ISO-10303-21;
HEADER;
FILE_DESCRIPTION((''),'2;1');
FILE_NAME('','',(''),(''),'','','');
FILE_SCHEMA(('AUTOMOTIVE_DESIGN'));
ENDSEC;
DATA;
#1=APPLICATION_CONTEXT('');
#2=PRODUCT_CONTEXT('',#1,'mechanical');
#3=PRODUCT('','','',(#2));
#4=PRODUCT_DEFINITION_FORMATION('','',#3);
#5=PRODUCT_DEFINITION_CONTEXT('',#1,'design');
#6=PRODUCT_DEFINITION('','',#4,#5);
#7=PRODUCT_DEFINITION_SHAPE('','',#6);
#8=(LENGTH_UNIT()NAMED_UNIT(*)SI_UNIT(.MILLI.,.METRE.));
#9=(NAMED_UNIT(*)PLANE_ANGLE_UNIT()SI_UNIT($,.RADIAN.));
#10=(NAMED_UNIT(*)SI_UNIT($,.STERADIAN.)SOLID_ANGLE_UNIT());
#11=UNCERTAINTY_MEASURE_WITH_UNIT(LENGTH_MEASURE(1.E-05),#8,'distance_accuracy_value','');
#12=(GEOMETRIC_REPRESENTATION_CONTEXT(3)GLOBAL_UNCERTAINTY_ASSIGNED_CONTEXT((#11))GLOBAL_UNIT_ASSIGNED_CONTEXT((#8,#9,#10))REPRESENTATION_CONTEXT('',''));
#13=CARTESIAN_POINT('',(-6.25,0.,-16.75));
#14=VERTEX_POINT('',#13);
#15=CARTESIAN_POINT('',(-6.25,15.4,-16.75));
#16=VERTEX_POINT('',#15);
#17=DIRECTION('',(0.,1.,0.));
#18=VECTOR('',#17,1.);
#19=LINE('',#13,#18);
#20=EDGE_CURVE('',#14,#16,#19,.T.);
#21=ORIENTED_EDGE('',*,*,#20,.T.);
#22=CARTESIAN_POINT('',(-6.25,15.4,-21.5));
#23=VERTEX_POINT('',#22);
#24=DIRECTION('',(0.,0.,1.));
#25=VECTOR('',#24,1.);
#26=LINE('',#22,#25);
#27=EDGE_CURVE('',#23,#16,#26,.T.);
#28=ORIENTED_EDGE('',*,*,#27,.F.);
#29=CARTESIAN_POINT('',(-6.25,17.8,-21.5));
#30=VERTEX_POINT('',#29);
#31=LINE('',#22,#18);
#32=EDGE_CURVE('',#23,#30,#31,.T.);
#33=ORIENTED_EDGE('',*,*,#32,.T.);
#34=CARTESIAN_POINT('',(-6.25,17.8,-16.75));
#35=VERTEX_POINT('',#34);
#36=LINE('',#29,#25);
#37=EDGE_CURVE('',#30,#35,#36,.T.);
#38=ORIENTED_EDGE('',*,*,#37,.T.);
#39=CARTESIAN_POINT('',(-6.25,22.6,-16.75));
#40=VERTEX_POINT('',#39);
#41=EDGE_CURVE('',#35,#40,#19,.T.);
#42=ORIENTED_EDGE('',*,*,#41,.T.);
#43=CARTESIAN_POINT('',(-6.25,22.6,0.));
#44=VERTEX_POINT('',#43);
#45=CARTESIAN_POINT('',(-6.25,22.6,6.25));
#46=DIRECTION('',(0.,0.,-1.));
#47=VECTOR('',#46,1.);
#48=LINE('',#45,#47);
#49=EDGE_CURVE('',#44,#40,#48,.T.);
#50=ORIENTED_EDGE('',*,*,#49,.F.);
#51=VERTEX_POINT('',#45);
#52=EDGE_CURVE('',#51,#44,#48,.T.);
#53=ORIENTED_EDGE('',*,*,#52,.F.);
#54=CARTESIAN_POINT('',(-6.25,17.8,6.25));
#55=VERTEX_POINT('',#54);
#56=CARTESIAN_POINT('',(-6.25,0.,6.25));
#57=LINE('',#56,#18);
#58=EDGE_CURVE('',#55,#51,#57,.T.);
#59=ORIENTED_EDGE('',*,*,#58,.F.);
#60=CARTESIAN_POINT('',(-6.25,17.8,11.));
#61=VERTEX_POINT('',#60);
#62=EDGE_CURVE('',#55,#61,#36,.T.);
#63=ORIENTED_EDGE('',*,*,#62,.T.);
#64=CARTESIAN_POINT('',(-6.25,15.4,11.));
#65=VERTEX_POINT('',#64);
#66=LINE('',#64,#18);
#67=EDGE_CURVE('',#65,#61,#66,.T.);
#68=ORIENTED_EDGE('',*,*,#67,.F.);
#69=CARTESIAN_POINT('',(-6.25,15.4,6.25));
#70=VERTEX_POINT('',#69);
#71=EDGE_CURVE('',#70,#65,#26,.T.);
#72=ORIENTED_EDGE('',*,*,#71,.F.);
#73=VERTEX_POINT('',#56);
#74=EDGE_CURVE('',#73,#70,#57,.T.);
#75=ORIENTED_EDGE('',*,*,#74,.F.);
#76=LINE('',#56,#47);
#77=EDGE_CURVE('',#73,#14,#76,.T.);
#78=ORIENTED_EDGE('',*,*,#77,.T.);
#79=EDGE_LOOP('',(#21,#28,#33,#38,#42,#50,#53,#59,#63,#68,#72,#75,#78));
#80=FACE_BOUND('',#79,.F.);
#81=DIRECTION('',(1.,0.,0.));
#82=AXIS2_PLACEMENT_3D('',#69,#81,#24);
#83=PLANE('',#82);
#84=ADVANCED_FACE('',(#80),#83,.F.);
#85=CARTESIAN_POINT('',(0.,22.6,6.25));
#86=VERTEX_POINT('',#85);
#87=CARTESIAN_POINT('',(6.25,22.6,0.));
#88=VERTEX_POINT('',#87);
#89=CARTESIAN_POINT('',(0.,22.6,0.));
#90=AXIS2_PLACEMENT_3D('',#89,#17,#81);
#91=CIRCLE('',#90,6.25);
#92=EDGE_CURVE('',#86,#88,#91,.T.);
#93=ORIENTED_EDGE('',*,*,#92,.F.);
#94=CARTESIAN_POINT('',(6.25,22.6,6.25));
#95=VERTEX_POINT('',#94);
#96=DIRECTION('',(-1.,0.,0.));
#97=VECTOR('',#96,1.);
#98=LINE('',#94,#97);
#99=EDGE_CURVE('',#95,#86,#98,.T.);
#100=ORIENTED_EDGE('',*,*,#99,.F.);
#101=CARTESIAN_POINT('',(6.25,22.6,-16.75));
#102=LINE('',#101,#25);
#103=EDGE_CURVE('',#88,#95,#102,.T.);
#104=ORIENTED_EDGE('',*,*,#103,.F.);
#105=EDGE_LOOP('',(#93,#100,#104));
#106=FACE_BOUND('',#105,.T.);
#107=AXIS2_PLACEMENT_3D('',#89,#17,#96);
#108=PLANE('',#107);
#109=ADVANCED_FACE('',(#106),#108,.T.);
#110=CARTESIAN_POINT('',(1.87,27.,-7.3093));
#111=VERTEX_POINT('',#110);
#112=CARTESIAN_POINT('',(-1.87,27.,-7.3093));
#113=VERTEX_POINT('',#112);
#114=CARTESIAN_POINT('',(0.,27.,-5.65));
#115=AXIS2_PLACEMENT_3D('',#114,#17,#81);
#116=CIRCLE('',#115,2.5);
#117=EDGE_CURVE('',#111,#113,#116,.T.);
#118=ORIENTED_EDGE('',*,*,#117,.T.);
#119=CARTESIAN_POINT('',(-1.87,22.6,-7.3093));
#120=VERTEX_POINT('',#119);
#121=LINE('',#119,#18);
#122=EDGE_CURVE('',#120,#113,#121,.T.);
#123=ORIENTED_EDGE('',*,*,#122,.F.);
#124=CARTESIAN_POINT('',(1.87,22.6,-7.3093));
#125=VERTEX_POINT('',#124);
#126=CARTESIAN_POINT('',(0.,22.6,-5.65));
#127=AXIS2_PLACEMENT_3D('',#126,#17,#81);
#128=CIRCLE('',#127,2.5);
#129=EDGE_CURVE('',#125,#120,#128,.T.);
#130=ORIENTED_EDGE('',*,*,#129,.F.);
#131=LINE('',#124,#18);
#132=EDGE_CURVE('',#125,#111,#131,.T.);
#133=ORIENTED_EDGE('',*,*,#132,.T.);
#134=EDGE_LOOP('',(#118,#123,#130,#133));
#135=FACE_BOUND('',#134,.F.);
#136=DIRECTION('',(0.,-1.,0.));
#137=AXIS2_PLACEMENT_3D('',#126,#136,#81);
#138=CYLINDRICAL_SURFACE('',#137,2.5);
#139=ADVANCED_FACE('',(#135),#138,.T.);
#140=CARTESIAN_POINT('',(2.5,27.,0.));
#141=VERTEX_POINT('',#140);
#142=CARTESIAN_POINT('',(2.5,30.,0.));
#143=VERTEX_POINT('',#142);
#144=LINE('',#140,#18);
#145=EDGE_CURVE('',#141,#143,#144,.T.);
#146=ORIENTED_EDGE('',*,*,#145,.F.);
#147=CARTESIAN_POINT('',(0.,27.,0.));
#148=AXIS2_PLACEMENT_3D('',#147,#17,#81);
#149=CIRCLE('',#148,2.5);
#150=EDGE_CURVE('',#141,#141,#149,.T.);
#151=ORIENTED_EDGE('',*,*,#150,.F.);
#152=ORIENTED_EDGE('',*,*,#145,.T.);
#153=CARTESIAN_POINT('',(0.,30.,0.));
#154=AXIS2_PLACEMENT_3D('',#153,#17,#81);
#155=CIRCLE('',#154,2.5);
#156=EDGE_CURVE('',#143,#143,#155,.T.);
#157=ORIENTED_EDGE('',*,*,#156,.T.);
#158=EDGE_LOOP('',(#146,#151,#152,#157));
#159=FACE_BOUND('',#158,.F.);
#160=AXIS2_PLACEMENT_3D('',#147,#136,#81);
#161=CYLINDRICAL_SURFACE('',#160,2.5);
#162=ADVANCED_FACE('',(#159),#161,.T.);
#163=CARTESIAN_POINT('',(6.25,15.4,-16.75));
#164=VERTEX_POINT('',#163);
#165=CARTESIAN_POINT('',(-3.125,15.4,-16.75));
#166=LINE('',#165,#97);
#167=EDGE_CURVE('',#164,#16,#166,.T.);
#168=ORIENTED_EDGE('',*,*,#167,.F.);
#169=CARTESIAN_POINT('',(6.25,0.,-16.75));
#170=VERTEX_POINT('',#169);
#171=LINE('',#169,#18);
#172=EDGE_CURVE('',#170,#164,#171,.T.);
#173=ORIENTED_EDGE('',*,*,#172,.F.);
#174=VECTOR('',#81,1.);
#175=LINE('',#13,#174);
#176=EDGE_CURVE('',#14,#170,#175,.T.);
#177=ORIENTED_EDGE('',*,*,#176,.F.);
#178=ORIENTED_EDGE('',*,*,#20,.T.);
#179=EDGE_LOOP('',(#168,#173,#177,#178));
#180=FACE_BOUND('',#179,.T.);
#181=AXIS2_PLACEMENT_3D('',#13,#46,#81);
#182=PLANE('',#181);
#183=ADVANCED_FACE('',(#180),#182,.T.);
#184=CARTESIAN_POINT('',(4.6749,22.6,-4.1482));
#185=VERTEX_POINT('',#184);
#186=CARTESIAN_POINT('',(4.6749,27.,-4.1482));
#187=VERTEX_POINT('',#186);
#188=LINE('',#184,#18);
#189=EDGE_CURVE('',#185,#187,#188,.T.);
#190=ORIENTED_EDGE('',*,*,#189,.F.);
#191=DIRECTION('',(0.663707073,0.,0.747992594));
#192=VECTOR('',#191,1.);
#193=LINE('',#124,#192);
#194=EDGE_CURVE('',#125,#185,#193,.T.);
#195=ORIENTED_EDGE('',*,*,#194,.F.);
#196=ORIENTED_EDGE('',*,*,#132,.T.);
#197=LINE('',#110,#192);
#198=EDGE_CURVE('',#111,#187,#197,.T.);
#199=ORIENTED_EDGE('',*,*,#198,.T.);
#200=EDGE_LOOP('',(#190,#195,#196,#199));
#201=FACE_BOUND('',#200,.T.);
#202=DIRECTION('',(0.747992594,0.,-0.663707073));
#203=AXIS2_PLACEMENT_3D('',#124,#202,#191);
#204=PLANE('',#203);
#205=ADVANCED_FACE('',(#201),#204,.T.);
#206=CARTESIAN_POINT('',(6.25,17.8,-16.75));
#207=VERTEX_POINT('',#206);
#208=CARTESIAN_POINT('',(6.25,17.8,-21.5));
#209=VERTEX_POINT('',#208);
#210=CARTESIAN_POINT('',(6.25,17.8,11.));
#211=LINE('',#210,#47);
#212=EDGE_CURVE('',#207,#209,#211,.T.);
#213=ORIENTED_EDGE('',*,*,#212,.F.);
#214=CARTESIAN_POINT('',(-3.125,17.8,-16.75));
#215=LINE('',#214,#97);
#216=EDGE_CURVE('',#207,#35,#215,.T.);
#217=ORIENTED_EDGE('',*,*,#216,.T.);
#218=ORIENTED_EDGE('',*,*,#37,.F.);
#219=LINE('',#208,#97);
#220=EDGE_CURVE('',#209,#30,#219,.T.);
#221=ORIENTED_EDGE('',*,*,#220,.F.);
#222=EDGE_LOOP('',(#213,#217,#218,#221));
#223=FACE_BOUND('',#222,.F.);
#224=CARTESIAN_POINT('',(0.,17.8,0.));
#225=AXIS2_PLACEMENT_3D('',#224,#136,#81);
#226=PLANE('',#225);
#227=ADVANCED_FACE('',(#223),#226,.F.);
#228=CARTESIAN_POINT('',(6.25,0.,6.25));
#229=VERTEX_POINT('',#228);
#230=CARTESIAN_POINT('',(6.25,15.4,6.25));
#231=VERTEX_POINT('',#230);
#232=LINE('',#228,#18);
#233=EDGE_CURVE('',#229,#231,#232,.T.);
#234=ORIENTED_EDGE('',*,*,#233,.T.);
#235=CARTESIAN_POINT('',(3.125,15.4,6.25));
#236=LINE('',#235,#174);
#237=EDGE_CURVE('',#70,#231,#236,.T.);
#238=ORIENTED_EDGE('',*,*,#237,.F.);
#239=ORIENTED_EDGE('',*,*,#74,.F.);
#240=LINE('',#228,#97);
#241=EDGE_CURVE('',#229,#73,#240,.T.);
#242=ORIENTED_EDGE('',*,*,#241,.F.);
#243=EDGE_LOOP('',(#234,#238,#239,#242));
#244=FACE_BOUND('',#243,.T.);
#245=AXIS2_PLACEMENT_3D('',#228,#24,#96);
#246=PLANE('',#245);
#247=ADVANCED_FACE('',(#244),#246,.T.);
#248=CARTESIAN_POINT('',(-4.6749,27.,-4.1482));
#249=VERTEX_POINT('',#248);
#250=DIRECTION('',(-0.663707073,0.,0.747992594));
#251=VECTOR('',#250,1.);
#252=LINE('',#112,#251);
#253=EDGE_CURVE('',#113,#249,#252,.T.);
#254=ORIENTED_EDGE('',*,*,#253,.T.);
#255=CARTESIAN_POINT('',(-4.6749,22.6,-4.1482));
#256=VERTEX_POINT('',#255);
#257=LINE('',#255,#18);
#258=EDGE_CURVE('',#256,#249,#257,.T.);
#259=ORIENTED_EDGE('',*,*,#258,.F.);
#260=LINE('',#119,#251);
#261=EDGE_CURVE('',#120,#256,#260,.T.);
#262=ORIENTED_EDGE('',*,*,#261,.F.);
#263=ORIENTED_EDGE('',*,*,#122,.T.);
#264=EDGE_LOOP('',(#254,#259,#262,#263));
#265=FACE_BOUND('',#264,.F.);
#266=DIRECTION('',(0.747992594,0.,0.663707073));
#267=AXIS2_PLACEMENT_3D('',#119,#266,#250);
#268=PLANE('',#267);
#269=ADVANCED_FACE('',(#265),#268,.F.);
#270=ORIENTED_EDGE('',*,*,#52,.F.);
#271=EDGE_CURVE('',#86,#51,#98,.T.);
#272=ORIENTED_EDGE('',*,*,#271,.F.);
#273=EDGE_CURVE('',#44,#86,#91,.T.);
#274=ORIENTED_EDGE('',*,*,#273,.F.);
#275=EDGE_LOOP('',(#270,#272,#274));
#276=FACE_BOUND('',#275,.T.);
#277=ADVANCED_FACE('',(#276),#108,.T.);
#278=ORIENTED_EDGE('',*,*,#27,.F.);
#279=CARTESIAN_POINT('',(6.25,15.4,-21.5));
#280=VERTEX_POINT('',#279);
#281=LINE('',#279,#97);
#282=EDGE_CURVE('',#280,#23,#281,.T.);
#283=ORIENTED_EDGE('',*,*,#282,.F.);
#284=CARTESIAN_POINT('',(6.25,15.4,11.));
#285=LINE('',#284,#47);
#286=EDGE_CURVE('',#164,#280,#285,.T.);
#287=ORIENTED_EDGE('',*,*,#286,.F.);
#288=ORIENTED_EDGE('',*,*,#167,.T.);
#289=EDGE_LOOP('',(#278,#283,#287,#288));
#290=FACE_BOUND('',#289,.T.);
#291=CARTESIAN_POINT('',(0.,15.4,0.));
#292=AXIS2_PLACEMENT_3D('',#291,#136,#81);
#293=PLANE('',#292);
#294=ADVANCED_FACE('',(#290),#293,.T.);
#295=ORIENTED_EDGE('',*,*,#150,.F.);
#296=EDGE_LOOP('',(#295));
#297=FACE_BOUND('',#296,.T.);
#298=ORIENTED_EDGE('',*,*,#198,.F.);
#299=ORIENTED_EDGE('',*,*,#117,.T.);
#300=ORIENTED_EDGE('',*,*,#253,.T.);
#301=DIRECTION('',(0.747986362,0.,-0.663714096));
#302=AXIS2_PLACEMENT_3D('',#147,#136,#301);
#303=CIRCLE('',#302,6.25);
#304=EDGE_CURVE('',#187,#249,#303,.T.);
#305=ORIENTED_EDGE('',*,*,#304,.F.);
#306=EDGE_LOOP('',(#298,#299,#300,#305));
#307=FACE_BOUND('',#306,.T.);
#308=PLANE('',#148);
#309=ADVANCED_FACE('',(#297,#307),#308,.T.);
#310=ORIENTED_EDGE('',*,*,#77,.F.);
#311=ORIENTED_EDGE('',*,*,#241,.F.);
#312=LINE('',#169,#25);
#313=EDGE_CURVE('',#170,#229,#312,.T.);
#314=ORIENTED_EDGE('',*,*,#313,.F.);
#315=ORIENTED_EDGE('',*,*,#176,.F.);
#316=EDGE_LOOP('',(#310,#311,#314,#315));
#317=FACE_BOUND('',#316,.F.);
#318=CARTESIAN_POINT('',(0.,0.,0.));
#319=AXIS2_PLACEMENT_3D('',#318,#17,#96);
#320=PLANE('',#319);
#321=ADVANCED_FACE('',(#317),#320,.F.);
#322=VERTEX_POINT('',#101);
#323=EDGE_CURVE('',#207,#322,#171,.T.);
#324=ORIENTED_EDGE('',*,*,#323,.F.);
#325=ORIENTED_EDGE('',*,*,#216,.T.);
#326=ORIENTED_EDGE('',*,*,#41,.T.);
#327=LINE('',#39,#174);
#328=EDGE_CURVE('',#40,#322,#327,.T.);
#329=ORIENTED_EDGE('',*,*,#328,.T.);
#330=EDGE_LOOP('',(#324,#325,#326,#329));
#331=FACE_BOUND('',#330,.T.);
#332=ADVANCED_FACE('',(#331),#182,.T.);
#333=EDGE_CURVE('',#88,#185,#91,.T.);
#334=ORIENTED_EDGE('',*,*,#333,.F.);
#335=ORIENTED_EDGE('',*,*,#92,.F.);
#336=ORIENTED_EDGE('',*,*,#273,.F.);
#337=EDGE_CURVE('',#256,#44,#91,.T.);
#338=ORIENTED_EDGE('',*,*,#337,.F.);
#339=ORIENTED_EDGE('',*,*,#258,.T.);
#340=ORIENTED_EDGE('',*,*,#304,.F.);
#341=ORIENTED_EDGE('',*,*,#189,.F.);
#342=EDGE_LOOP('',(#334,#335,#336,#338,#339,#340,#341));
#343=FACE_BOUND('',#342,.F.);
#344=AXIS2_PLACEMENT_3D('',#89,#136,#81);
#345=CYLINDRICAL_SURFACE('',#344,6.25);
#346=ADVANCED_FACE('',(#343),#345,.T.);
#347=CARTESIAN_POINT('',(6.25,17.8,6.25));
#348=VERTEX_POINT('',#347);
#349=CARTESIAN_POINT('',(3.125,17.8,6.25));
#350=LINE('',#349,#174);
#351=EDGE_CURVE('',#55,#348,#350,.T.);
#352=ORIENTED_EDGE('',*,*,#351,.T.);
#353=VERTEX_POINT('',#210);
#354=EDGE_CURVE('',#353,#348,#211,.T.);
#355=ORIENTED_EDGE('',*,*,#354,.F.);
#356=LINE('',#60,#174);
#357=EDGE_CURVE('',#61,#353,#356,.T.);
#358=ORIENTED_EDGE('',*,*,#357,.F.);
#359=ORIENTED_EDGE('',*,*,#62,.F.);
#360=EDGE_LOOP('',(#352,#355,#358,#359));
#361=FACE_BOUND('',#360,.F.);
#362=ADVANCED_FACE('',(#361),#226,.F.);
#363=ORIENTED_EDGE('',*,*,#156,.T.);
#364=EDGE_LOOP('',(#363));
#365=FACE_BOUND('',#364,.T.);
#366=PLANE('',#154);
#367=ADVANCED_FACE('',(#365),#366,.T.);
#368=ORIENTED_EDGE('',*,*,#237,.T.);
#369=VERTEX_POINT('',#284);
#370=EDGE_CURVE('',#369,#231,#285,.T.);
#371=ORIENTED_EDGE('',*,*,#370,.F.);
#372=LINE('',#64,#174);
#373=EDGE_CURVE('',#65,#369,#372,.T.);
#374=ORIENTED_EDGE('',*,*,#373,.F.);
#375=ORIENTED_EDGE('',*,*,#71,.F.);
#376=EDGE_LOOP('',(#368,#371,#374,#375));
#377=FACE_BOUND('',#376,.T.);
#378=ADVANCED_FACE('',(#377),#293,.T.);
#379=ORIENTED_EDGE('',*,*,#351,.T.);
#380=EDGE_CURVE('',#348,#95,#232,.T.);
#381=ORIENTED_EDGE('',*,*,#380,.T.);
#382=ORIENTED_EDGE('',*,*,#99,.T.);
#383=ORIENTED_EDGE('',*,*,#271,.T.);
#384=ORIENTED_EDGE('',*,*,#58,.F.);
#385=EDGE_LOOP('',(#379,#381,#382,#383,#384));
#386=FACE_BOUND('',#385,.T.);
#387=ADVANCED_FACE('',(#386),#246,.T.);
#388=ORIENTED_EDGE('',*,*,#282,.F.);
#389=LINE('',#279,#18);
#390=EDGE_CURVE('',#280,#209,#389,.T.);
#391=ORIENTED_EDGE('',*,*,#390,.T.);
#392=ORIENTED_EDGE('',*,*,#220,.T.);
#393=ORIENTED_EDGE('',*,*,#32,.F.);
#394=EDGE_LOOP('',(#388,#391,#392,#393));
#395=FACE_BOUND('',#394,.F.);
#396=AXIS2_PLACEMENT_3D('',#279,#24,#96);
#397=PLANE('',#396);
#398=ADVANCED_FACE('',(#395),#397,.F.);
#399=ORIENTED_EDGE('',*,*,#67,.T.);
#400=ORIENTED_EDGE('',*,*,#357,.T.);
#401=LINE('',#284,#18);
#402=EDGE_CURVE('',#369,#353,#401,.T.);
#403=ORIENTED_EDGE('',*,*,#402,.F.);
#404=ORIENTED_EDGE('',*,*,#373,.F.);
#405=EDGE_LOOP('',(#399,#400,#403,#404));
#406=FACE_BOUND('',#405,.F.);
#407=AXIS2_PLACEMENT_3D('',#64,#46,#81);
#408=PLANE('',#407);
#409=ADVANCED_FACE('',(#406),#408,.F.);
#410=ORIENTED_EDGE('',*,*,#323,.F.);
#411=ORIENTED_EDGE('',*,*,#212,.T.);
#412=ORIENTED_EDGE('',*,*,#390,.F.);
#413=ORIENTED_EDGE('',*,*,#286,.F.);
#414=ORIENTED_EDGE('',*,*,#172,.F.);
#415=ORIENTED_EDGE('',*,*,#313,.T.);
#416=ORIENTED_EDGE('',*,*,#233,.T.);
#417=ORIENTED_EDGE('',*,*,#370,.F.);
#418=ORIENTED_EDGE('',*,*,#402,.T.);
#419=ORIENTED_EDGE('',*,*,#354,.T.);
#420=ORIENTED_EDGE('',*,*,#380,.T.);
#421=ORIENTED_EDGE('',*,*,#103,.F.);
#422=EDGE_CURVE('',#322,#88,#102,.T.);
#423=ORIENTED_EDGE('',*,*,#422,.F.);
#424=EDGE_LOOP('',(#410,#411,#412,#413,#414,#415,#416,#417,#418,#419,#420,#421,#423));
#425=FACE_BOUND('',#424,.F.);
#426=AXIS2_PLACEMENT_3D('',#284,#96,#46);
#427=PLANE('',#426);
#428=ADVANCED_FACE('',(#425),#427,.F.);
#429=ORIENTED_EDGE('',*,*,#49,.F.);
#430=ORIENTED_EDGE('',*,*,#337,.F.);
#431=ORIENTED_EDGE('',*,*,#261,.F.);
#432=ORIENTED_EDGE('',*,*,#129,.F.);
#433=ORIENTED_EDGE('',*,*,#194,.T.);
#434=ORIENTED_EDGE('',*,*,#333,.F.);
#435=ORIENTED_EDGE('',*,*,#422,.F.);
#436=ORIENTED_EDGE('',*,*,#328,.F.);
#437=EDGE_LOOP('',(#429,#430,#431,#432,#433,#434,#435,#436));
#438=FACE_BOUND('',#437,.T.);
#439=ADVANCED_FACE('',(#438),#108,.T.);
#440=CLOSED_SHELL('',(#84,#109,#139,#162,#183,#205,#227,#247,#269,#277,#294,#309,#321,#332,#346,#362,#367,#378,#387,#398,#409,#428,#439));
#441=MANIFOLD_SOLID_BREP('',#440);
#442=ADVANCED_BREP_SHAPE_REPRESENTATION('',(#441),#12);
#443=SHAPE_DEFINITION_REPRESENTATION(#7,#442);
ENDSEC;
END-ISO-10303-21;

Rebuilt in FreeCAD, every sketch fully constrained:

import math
import FreeCAD as App
import Part
import Sketcher

V = App.Vector

doc = App.newDocument("Part")
body = doc.addObject("PartDesign::Body", "Body")

# Sketch on XZ plane
sketch1 = body.newObject("Sketcher::SketchObject", "Sketch")
sketch1.AttachmentSupport = (doc.getObject("XZ_Plane"), [""])
sketch1.MapMode = "FlatFace"
sketch1.addGeometry(Part.LineSegment(V(6, -17, 0), V(-6, -17, 0)), False)
sketch1.addGeometry(Part.LineSegment(V(-6, -17, 0), V(-6, 6, 0)), False)
sketch1.addGeometry(Part.LineSegment(V(-6, 6, 0), V(6, 6, 0)), False)
sketch1.addGeometry(Part.LineSegment(V(6, 6, 0), V(6, -17, 0)), False)
sketch1.addConstraint(Sketcher.Constraint("Coincident", 0, 2, 1, 1))
sketch1.addConstraint(Sketcher.Constraint("Coincident", 1, 2, 2, 1))
sketch1.addConstraint(Sketcher.Constraint("Coincident", 2, 2, 3, 1))
sketch1.addConstraint(Sketcher.Constraint("Coincident", 3, 2, 0, 1))
sketch1.addConstraint(Sketcher.Constraint("Horizontal", 0))
sketch1.addConstraint(Sketcher.Constraint("Vertical", 1))
sketch1.addConstraint(Sketcher.Constraint("Horizontal", 2))
sketch1.addConstraint(Sketcher.Constraint("Vertical", 3))
sketch1.addConstraint(Sketcher.Constraint("DistanceY", 1, 1, 1, 2, 23.0))
sketch1.addConstraint(Sketcher.Constraint("DistanceX", 0, 2, 0, 1, 12.5))
sketch1.addConstraint(Sketcher.Constraint("DistanceX", 0, 2, -1, 1, 6.25))
sketch1.addConstraint(Sketcher.Constraint("DistanceY", -1, 1, 1, 2, 6.25))
pad1 = body.newObject("PartDesign::Pad", "Pad")
pad1.Profile = sketch1
pad1.Length = 22.6
pad1.Reversed = True

# Sketch on XZ plane
sketch2 = body.newObject("Sketcher::SketchObject", "Sketch001")
sketch2.AttachmentSupport = (doc.getObject("XZ_Plane"), [""])
sketch2.MapMode = "FlatFace"
sketch2.AttachmentOffset = App.Placement(V(0, 0, -22.6), App.Rotation())
sketch2.addGeometry(Part.LineSegment(V(4.7, -4.1, 0), V(1.9, -7.3, 0)), False)
sketch2.addGeometry(Part.ArcOfCircle(Part.Circle(V(0, -5.7, 0), V(0, 0, 1), 2.5), math.radians(-138), math.radians(-42)), False)
sketch2.addGeometry(Part.LineSegment(V(-1.9, -7.3, 0), V(-4.7, -4.1, 0)), False)
sketch2.addGeometry(Part.ArcOfCircle(Part.Circle(V(0, 0, 0), V(0, 0, 1), 6.2), math.radians(-42), math.radians(222)), False)
sketch2.addConstraint(Sketcher.Constraint("Tangent", 0, 2, 1, 2))
sketch2.addConstraint(Sketcher.Constraint("Tangent", 1, 1, 2, 1))
sketch2.addConstraint(Sketcher.Constraint("Tangent", 2, 2, 3, 2))
sketch2.addConstraint(Sketcher.Constraint("Tangent", 3, 1, 0, 1))
sketch2.addConstraint(Sketcher.Constraint("Coincident", 3, 3, -1, 1))
sketch2.addConstraint(Sketcher.Constraint("PointOnObject", 1, 3, -2))
sketch2.addConstraint(Sketcher.Constraint("Radius", 1, 2.5))
sketch2.addConstraint(Sketcher.Constraint("Radius", 3, 6.25))
sketch2.addConstraint(Sketcher.Constraint("DistanceY", 1, 3, -1, 1, 5.65))
pad2 = body.newObject("PartDesign::Pad", "Pad001")
pad2.Profile = sketch2
pad2.Length = 4.4
pad2.Reversed = True

# Sketch on XZ plane
sketch3 = body.newObject("Sketcher::SketchObject", "Sketch002")
sketch3.AttachmentSupport = (doc.getObject("XZ_Plane"), [""])
sketch3.MapMode = "FlatFace"
sketch3.AttachmentOffset = App.Placement(V(0, 0, -15.4), App.Rotation())
sketch3.addGeometry(Part.LineSegment(V(6, 11, 0), V(-6, 11, 0)), False)
sketch3.addGeometry(Part.LineSegment(V(-6, 11, 0), V(-6, -22, 0)), False)
sketch3.addGeometry(Part.LineSegment(V(-6, -22, 0), V(6, -22, 0)), False)
sketch3.addGeometry(Part.LineSegment(V(6, -22, 0), V(6, 11, 0)), False)
sketch3.addConstraint(Sketcher.Constraint("Coincident", 0, 2, 1, 1))
sketch3.addConstraint(Sketcher.Constraint("Coincident", 1, 2, 2, 1))
sketch3.addConstraint(Sketcher.Constraint("Coincident", 2, 2, 3, 1))
sketch3.addConstraint(Sketcher.Constraint("Coincident", 3, 2, 0, 1))
sketch3.addConstraint(Sketcher.Constraint("Horizontal", 0))
sketch3.addConstraint(Sketcher.Constraint("Vertical", 1))
sketch3.addConstraint(Sketcher.Constraint("Horizontal", 2))
sketch3.addConstraint(Sketcher.Constraint("Vertical", 3))
sketch3.addConstraint(Sketcher.Constraint("DistanceY", 1, 2, 1, 1, 32.5))
sketch3.addConstraint(Sketcher.Constraint("DistanceX", 0, 2, 0, 1, 12.5))
sketch3.addConstraint(Sketcher.Constraint("DistanceY", -1, 1, 0, 2, 11.0))
sketch3.addConstraint(Sketcher.Constraint("DistanceX", 0, 2, -1, 1, 6.25))
pad3 = body.newObject("PartDesign::Pad", "Pad002")
pad3.Profile = sketch3
pad3.Length = 2.4
pad3.Reversed = True

# Sketch on XZ plane
sketch4 = body.newObject("Sketcher::SketchObject", "Sketch003")
sketch4.AttachmentSupport = (doc.getObject("XZ_Plane"), [""])
sketch4.MapMode = "FlatFace"
sketch4.AttachmentOffset = App.Placement(V(0, 0, -27), App.Rotation())
sketch4.addGeometry(Part.Circle(V(0, 0, 0), V(0, 0, 1), 2.5), False)
sketch4.addConstraint(Sketcher.Constraint("Coincident", 0, 3, -1, 1))
sketch4.addConstraint(Sketcher.Constraint("Diameter", 0, 5.0))
pad4 = body.newObject("PartDesign::Pad", "Pad003")
pad4.Profile = sketch4
pad4.Length = 3
pad4.Reversed = True

doc.recompute()
